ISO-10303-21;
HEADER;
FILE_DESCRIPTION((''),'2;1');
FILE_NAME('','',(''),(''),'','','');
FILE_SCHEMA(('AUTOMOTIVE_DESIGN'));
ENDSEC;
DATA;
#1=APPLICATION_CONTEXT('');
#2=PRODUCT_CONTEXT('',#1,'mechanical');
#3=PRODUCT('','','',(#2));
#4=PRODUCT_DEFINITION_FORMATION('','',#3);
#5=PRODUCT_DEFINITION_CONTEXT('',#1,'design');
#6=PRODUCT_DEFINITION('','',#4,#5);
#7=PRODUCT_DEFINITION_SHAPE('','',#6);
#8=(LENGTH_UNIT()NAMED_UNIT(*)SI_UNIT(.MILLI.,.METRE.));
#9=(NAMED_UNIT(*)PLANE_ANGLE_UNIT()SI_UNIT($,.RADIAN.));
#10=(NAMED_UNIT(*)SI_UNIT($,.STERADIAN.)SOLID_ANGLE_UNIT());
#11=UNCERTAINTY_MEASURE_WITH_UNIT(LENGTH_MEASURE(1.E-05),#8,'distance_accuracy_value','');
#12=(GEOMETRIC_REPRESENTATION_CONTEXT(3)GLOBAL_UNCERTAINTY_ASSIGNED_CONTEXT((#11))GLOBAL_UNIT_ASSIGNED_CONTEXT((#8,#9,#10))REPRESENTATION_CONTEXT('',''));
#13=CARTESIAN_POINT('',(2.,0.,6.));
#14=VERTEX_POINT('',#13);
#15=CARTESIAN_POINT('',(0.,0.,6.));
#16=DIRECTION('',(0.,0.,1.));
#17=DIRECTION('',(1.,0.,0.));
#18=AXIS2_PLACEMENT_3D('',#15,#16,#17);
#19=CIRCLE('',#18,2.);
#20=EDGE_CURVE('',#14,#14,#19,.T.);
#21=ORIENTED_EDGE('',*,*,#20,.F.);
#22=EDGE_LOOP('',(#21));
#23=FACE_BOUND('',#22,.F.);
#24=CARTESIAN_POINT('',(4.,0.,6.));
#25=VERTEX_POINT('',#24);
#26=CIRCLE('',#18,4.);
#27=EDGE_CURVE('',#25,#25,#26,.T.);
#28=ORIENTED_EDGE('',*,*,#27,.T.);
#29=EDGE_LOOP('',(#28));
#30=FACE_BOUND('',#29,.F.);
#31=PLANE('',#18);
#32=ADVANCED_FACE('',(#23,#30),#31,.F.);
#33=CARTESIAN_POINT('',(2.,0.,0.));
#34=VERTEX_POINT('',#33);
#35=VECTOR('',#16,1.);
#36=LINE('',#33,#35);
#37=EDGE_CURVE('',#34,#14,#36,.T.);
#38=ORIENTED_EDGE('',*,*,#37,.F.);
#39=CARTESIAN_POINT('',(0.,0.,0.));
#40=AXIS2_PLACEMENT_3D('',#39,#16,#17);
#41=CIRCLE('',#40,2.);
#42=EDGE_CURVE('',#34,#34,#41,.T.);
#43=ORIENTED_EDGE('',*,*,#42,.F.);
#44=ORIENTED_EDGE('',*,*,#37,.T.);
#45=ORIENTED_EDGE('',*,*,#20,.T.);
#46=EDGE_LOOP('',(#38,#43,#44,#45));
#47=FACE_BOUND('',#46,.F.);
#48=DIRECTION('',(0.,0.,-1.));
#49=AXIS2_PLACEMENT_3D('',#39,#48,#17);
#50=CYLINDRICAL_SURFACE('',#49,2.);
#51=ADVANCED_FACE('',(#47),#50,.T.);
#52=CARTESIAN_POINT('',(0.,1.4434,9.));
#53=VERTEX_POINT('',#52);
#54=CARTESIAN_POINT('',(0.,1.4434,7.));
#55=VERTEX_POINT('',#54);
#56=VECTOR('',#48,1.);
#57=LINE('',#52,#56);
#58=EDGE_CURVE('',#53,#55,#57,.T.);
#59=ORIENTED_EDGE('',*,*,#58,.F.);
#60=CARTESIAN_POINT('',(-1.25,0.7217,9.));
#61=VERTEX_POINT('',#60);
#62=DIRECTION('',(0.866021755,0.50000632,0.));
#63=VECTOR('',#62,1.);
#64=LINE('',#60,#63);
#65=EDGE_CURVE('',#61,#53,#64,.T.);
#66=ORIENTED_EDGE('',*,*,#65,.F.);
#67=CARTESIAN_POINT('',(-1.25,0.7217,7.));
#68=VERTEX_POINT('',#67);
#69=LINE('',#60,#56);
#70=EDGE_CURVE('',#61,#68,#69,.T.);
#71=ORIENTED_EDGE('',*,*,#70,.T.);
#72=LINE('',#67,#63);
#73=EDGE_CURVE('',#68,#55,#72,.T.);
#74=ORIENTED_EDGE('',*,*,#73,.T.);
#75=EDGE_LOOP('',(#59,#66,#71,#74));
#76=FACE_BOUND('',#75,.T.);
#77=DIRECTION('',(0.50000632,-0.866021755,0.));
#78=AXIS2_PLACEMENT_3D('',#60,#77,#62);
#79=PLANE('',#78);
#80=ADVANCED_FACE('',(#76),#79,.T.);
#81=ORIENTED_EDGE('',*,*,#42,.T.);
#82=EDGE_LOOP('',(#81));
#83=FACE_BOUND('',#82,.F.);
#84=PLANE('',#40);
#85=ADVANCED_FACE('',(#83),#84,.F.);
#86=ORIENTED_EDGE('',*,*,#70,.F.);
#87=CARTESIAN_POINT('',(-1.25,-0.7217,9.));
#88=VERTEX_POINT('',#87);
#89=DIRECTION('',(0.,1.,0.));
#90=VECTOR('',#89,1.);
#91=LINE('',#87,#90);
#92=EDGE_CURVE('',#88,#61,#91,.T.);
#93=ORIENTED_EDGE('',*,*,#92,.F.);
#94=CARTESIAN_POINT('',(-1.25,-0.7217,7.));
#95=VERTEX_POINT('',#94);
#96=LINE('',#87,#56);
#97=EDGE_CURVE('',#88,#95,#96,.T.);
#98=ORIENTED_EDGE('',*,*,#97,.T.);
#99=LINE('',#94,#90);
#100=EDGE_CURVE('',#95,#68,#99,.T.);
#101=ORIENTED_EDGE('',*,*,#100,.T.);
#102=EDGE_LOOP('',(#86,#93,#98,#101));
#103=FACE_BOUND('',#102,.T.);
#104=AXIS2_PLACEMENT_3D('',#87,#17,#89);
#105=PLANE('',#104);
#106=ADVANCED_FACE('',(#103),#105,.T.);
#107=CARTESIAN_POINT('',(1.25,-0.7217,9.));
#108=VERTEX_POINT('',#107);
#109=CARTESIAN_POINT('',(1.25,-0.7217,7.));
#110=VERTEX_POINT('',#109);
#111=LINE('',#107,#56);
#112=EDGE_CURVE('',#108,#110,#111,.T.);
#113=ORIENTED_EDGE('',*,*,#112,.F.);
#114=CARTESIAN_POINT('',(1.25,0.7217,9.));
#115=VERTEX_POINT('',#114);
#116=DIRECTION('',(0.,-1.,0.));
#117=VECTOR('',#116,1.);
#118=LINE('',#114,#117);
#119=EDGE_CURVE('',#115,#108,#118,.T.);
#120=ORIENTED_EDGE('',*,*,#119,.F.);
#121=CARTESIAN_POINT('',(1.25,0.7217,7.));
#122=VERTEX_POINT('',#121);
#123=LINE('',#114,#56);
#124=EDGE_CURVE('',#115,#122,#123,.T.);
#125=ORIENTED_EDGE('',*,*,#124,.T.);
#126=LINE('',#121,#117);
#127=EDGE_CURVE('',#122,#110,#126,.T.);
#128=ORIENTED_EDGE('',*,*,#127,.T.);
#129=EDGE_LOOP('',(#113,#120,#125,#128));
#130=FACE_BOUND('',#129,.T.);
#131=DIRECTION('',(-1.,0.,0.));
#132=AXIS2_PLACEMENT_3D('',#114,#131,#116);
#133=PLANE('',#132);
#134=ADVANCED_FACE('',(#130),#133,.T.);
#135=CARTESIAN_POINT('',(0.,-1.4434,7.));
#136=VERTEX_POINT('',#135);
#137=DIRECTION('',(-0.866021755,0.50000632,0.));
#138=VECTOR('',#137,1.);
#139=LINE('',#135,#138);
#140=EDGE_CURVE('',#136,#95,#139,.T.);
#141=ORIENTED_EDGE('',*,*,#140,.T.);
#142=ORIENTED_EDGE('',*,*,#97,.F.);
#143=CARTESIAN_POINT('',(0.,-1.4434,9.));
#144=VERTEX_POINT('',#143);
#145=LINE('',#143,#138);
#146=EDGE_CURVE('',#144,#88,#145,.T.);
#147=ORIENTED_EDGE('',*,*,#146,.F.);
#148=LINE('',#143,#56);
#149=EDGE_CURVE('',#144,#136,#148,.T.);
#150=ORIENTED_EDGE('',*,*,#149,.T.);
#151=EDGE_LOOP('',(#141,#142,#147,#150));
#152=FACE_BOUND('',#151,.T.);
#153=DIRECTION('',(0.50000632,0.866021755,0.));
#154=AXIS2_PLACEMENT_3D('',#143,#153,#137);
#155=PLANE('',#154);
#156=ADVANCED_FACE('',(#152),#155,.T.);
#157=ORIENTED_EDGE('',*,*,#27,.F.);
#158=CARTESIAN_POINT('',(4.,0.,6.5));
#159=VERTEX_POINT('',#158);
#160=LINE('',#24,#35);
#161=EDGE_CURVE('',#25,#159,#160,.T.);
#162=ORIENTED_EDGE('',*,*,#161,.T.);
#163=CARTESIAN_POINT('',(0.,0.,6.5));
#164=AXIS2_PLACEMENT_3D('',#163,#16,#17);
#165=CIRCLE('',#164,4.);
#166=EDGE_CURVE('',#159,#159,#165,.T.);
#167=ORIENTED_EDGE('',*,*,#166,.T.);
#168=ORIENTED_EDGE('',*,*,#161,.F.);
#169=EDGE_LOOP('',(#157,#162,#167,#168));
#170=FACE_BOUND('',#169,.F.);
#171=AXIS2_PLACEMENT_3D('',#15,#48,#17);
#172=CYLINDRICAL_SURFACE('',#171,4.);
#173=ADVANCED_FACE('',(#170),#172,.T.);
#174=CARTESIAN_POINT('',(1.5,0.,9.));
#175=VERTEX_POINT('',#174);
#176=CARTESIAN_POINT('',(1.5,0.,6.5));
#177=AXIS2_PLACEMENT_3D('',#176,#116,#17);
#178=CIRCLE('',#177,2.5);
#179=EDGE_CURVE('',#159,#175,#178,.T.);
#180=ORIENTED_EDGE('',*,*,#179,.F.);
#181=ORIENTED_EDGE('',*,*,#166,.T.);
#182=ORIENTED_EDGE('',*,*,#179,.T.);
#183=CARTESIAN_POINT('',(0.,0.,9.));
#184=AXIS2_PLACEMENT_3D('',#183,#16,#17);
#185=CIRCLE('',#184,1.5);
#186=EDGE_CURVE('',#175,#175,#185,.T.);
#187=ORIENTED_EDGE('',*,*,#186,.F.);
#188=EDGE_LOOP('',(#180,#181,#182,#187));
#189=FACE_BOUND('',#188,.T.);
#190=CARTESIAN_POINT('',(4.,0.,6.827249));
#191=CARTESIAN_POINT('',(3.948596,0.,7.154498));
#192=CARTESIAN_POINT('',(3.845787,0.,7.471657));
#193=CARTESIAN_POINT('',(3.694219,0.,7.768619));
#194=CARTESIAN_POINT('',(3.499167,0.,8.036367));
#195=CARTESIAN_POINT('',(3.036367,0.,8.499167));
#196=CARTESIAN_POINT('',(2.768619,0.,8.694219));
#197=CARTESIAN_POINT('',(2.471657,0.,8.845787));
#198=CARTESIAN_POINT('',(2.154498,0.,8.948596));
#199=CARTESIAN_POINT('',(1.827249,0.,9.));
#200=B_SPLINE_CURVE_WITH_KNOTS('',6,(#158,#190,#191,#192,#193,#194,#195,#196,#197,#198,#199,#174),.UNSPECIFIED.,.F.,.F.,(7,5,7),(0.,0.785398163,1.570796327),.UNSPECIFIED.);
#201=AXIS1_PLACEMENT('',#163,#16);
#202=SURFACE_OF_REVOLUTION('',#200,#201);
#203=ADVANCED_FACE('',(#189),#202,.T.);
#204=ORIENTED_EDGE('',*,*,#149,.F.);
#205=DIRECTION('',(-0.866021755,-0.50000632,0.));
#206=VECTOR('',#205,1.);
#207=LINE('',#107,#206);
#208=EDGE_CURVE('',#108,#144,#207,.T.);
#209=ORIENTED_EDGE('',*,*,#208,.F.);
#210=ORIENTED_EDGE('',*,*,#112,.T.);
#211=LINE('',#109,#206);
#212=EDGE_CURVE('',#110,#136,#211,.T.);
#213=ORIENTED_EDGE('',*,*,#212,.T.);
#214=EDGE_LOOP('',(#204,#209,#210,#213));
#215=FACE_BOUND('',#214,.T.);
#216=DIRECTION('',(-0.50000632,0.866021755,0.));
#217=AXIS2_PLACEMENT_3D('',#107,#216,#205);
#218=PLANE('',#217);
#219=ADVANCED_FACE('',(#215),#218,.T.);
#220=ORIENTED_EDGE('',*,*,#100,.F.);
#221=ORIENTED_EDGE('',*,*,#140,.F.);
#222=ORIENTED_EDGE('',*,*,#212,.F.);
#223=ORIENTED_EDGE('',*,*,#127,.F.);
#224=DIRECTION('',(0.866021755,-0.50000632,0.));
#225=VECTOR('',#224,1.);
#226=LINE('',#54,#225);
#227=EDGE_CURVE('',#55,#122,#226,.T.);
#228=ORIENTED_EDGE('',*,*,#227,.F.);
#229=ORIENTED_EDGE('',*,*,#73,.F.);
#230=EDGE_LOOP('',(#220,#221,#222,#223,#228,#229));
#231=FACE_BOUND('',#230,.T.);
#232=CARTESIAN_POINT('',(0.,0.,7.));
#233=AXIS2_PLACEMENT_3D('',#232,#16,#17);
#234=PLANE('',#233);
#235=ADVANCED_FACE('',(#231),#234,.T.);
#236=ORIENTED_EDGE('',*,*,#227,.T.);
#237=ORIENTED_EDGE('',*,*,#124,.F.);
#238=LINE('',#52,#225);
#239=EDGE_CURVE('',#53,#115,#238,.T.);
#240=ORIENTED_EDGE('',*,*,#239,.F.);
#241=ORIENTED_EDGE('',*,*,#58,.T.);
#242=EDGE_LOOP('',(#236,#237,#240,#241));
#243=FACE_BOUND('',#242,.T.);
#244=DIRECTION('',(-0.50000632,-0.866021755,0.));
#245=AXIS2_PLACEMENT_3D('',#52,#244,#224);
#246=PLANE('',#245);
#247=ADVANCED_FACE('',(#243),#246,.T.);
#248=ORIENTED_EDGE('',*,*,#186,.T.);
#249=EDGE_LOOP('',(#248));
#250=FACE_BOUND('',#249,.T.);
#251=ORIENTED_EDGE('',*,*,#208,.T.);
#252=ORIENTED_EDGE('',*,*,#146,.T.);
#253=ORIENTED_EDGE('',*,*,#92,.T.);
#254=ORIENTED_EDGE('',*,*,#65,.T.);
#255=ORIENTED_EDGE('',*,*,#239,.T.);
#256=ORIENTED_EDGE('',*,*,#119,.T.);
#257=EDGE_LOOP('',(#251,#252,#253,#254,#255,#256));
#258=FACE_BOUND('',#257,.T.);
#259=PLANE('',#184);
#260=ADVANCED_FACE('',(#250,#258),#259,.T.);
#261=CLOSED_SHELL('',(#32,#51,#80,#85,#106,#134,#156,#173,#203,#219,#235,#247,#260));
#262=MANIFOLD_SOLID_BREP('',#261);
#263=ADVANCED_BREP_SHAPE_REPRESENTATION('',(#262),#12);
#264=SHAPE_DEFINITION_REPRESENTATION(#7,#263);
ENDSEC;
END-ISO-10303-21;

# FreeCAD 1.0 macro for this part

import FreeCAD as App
import Part
import Sketcher

V = App.Vector
Q = App.Units.Quantity


def edges_at(feature, points):
    """Names of the edges that pass closest to the given points."""
    edges = feature.Shape.Edges
    near = lambda p: min(range(len(edges)), key=lambda i: edges[i].distToShape(Part.Vertex(*p))[0])
    return sorted({f"Edge{near(p) + 1}" for p in points})

doc = App.newDocument("Part")
body = doc.addObject("PartDesign::Body", "Body")

sketch1 = doc.addObject("Sketcher::SketchObject", "Sketch")
body.addObject(sketch1)
sketch1.AttachmentSupport = (doc.XY_Plane, [""])
sketch1.MapMode = "FlatFace"
sketch1.addGeometry(Part.Circle(V(0, 0, 0), V(0, 0, 1), 2), False)
sketch1.addConstraint([
    Sketcher.Constraint("Coincident", 0, 3, -1, 1),
    Sketcher.Constraint("Diameter", 0, Q("4 mm")),
])
pad1 = doc.addObject("PartDesign::Pad", "Pad")
body.addObject(pad1)
pad1.Profile = sketch1
pad1.Length = 6

sketch2 = doc.addObject("Sketcher::SketchObject", "Sketch001")
body.addObject(sketch2)
sketch2.AttachmentSupport = (doc.XY_Plane, [""])
sketch2.MapMode = "FlatFace"
sketch2.AttachmentOffset = App.Placement(V(0, 0, 6), App.Rotation())
sketch2.addGeometry(Part.Circle(V(0, 0, 0), V(0, 0, 1), 4), False)
sketch2.addConstraint([
    Sketcher.Constraint("Coincident", 0, 3, -1, 1),
    Sketcher.Constraint("Diameter", 0, Q("8 mm")),
])
pad2 = doc.addObject("PartDesign::Pad", "Pad001")
body.addObject(pad2)
pad2.Profile = sketch2
pad2.Length = 3
doc.recompute()

fillet = doc.addObject("PartDesign::Fillet", "Fillet")
body.addObject(fillet)
fillet.Base = (pad2, edges_at(pad2, [(-4, 0, 9)]))
fillet.Radius = 2.5

sketch3 = doc.addObject("Sketcher::SketchObject", "Sketch002")
body.addObject(sketch3)
sketch3.AttachmentSupport = (doc.XY_Plane, [""])
sketch3.MapMode = "FlatFace"
sketch3.AttachmentOffset = App.Placement(V(0, 0, 9), App.Rotation())
sketch3.addGeometry([
    Part.LineSegment(V(1.2, 0.7, 0), V(0, 1.4, 0)),
    Part.LineSegment(V(0, 1.4, 0), V(-1.2, 0.7, 0)),
    Part.LineSegment(V(-1.2, 0.7, 0), V(-1.2, -0.7, 0)),
    Part.LineSegment(V(-1.2, -0.7, 0), V(0, -1.4, 0)),
    Part.LineSegment(V(0, -1.4, 0), V(1.2, -0.7, 0)),
    Part.LineSegment(V(1.2, -0.7, 0), V(1.2, 0.7, 0)),
], False)
sketch3.addConstraint([
    Sketcher.Constraint("Coincident", 0, 2, 1, 1),
    Sketcher.Constraint("Coincident", 1, 2, 2, 1),
    Sketcher.Constraint("Coincident", 2, 2, 3, 1),
    Sketcher.Constraint("Coincident", 3, 2, 4, 1),
    Sketcher.Constraint("Coincident", 4, 2, 5, 1),
    Sketcher.Constraint("Coincident", 5, 2, 0, 1),
    Sketcher.Constraint("Vertical", 2),
    Sketcher.Constraint("Vertical", 5),
    Sketcher.Constraint("Symmetric", 0, 2, 3, 2, -1, 1),
    Sketcher.Constraint("Symmetric", 1, 2, 4, 2, -1, 1),
    Sketcher.Constraint("PointOnObject", 0, 2, -2),
    Sketcher.Constraint("Parallel", 0, 3),
    Sketcher.Constraint("Horizontal", 2, 2, 4, 2),
    Sketcher.Constraint("DistanceX", 2, 2, 4, 2, Q("2.5 mm")),
    Sketcher.Constraint("Angle", 0, Q("149.9996 deg")),
    Sketcher.Constraint("DistanceY", 2, 2, 2, 1, Q("1.4434 mm")),
])
pocket1 = doc.addObject("PartDesign::Pocket", "Pocket")
body.addObject(pocket1)
pocket1.Profile = sketch3
pocket1.Length = 2

doc.recompute()
